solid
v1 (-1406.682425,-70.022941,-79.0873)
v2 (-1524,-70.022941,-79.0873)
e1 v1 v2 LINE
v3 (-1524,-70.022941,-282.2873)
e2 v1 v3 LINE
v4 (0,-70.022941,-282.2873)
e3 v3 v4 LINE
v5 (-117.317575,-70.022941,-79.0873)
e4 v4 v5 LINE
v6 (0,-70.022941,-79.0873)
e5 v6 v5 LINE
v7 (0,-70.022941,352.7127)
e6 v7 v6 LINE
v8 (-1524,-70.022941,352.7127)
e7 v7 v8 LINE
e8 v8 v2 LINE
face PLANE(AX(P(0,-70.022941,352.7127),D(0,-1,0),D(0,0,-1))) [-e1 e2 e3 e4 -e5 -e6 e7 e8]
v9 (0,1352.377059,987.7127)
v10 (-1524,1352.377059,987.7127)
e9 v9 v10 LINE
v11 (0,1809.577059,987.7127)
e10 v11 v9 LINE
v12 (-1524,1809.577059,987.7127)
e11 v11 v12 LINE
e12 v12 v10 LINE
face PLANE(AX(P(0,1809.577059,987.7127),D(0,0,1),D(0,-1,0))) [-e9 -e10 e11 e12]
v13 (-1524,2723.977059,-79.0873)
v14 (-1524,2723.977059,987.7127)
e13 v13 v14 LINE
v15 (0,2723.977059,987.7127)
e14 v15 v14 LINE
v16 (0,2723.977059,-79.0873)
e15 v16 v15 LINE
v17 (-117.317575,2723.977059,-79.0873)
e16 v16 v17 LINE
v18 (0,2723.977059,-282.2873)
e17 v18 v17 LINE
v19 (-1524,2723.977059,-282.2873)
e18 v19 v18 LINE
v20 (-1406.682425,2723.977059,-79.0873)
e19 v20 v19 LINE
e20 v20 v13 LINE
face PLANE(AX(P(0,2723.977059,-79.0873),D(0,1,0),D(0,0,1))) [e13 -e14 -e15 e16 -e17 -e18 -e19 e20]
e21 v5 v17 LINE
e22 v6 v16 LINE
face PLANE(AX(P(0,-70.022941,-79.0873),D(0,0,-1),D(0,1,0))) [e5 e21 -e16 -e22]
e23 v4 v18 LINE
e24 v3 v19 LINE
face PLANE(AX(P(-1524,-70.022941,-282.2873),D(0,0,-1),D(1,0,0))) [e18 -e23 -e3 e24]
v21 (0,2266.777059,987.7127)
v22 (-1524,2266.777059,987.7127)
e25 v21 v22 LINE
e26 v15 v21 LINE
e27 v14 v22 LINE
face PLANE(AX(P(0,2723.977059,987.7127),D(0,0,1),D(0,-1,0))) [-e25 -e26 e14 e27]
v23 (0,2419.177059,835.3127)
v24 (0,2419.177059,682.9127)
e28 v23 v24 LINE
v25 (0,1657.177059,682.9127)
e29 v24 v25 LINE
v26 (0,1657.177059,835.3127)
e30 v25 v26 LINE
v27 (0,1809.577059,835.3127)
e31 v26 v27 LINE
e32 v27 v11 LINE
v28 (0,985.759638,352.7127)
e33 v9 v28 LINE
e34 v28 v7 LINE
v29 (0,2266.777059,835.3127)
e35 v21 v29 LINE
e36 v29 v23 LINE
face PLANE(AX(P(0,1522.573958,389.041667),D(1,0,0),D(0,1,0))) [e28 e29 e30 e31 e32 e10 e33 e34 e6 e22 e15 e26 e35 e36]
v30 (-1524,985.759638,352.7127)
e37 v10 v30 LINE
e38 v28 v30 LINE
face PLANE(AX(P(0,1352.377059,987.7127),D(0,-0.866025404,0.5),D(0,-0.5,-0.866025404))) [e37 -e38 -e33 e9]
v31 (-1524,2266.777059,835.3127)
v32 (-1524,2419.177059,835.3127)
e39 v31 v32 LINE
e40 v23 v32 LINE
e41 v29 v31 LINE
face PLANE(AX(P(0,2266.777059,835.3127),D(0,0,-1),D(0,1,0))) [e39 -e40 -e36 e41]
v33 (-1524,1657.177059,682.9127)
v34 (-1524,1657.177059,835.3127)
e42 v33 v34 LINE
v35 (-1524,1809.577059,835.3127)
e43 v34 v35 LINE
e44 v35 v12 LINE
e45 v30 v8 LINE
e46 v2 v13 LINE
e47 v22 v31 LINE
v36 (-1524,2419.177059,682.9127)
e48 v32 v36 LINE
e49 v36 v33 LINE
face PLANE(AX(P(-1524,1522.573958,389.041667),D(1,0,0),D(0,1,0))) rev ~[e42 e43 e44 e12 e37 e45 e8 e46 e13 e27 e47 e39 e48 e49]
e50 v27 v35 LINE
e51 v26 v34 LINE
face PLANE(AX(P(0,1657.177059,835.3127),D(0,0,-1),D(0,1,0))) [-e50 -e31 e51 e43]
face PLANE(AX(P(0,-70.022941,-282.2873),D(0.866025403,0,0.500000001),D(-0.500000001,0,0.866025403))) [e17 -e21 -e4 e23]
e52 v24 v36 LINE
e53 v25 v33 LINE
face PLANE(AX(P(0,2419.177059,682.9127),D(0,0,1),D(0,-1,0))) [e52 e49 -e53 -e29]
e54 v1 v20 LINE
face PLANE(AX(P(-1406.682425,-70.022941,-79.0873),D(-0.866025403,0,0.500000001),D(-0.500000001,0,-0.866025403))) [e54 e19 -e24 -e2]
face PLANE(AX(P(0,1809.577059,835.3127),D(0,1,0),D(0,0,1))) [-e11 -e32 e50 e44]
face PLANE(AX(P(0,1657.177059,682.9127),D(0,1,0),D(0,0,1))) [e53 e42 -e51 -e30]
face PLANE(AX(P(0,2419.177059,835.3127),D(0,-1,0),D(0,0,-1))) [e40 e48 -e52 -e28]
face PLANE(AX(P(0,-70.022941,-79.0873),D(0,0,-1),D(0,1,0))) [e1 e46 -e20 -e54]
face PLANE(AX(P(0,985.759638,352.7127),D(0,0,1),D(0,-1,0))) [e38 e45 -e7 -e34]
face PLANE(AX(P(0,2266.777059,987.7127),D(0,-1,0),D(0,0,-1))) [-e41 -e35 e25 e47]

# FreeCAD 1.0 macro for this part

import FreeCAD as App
import Part
import Sketcher

V = App.Vector
Q = App.Units.Quantity

doc = App.newDocument("Part")
body = doc.addObject("PartDesign::Body", "Body")

sketch1 = doc.addObject("Sketcher::SketchObject", "Sketch")
body.addObject(sketch1)
sketch1.AttachmentSupport = (doc.YZ_Plane, [""])
sketch1.MapMode = "FlatFace"
sketch1.addGeometry(Part.LineSegment(V(-70.022941, 352.7127, 0), V(-70.022941, -79.0873, 0)), False)
sketch1.addGeometry(Part.LineSegment(V(-70.022941, -79.0873, 0), V(2723.977059, -79.0873, 0)), False)
sketch1.addGeometry(Part.LineSegment(V(2723.977059, -79.0873, 0), V(2723.977059, 987.7127, 0)), False)
sketch1.addGeometry(Part.LineSegment(V(2723.977059, 987.7127, 0), V(2266.777059, 987.7127, 0)), False)
sketch1.addGeometry(Part.LineSegment(V(2266.777059, 987.7127, 0), V(2266.777059, 835.3127, 0)), False)
sketch1.addGeometry(Part.LineSegment(V(2266.777059, 835.3127, 0), V(2419.177059, 835.3127, 0)), False)
sketch1.addGeometry(Part.LineSegment(V(2419.177059, 835.3127, 0), V(2419.177059, 682.9127, 0)), False)
sketch1.addGeometry(Part.LineSegment(V(2419.177059, 682.9127, 0), V(1657.177059, 682.9127, 0)), False)
sketch1.addGeometry(Part.LineSegment(V(1657.177059, 682.9127, 0), V(1657.177059, 835.3127, 0)), False)
sketch1.addGeometry(Part.LineSegment(V(1657.177059, 835.3127, 0), V(1809.577059, 835.3127, 0)), False)
sketch1.addGeometry(Part.LineSegment(V(1809.577059, 835.3127, 0), V(1809.577059, 987.7127, 0)), False)
sketch1.addGeometry(Part.LineSegment(V(1809.577059, 987.7127, 0), V(1352.377059, 987.7127, 0)), False)
sketch1.addGeometry(Part.LineSegment(V(1352.377059, 987.7127, 0), V(985.759638, 352.7127, 0)), False)
sketch1.addGeometry(Part.LineSegment(V(985.759638, 352.7127, 0), V(-70.022941, 352.7127, 0)), False)
sketch1.addConstraint(Sketcher.Constraint("Coincident", 0, 2, 1, 1))
sketch1.addConstraint(Sketcher.Constraint("Coincident", 1, 2, 2, 1))
sketch1.addConstraint(Sketcher.Constraint("Coincident", 2, 2, 3, 1))
sketch1.addConstraint(Sketcher.Constraint("Coincident", 3, 2, 4, 1))
sketch1.addConstraint(Sketcher.Constraint("Coincident", 4, 2, 5, 1))
sketch1.addConstraint(Sketcher.Constraint("Coincident", 5, 2, 6, 1))
sketch1.addConstraint(Sketcher.Constraint("Coincident", 6, 2, 7, 1))
sketch1.addConstraint(Sketcher.Constraint("Coincident", 7, 2, 8, 1))
sketch1.addConstraint(Sketcher.Constraint("Coincident", 8, 2, 9, 1))
sketch1.addConstraint(Sketcher.Constraint("Coincident", 9, 2, 10, 1))
sketch1.addConstraint(Sketcher.Constraint("Coincident", 10, 2, 11, 1))
sketch1.addConstraint(Sketcher.Constraint("Coincident", 11, 2, 12, 1))
sketch1.addConstraint(Sketcher.Constraint("Coincident", 12, 2, 13, 1))
sketch1.addConstraint(Sketcher.Constraint("Coincident", 13, 2, 0, 1))
sketch1.addConstraint(Sketcher.Constraint("Vertical", 0))
sketch1.addConstraint(Sketcher.Constraint("Horizontal", 1))
sketch1.addConstraint(Sketcher.Constraint("Vertical", 2))
sketch1.addConstraint(Sketcher.Constraint("Horizontal", 3))
sketch1.addConstraint(Sketcher.Constraint("Vertical", 4))
sketch1.addConstraint(Sketcher.Constraint("Horizontal", 5))
sketch1.addConstraint(Sketcher.Constraint("Vertical", 6))
sketch1.addConstraint(Sketcher.Constraint("Horizontal", 7))
sketch1.addConstraint(Sketcher.Constraint("Vertical", 8))
sketch1.addConstraint(Sketcher.Constraint("Horizontal", 9))
sketch1.addConstraint(Sketcher.Constraint("Vertical", 10))
sketch1.addConstraint(Sketcher.Constraint("Horizontal", 11))
sketch1.addConstraint(Sketcher.Constraint("Horizontal", 13))
sketch1.addConstraint(Sketcher.Constraint("Horizontal", 5, 2, 8, 2))
sketch1.addConstraint(Sketcher.Constraint("Horizontal", 3, 2, 10, 2))
sketch1.addConstraint(Sketcher.Constraint("Equal", 5, 9))
sketch1.addConstraint(Sketcher.Constraint("Equal", 3, 11))
sketch1.addConstraint(Sketcher.Constraint("Equal", 9, 4))
sketch1.addConstraint(Sketcher.Constraint("Equal", 4, 6))
sketch1.addConstraint(Sketcher.Constraint("DistanceX", 1, 1, 1, 2, Q("110 in")))
sketch1.addConstraint(Sketcher.Constraint("DistanceX", 3, 2, 3, 1, Q("18 in")))
sketch1.addConstraint(Sketcher.Constraint("DistanceX", 5, 1, 5, 2, Q("6 in")))
sketch1.addConstraint(Sketcher.Constraint("DistanceX", 7, 2, 7, 1, Q("30 in")))
sketch1.addConstraint(Sketcher.Constraint("DistanceY", 0, 2, 0, 1, Q("17 in")))
sketch1.addConstraint(Sketcher.Constraint("DistanceY", 2, 1, 2, 2, Q("42 in")))
sketch1.addConstraint(Sketcher.Constraint("Angle", 12, Q("-120 deg")))
sketch1.addConstraint(Sketcher.Constraint("DistanceY", 0, 2, -1, 1, 79.0873))
sketch1.addConstraint(Sketcher.Constraint("DistanceX", 0, 2, -1, 1, 70.022941))
pad1 = doc.addObject("PartDesign::Pad", "Pad")
body.addObject(pad1)
pad1.Profile = sketch1
pad1.Length = Q("60 in")
pad1.Reversed = True

sketch2 = doc.addObject("Sketcher::SketchObject", "Sketch001")
body.addObject(sketch2)
sketch2.AttachmentSupport = (doc.XZ_Plane, [""])
sketch2.MapMode = "FlatFace"
sketch2.AttachmentOffset = App.Placement(V(0, 0, 70.022941), App.Rotation())
sketch2.addGeometry(Part.LineSegment(V(-1406.682425, -79.0873, 0), V(-1524, -282.2873, 0)), False)
sketch2.addGeometry(Part.LineSegment(V(-1524, -282.2873, 0), V(0, -282.2873, 0)), False)
sketch2.addGeometry(Part.LineSegment(V(0, -282.2873, 0), V(-117.317575, -79.0873, 0)), False)
sketch2.addGeometry(Part.LineSegment(V(-117.317575, -79.0873, 0), V(-1406.682425, -79.0873, 0)), False)
sketch2.addConstraint(Sketcher.Constraint("Coincident", 0, 2, 1, 1))
sketch2.addConstraint(Sketcher.Constraint("Coincident", 1, 2, 2, 1))
sketch2.addConstraint(Sketcher.Constraint("Coincident", 2, 2, 3, 1))
sketch2.addConstraint(Sketcher.Constraint("Coincident", 3, 2, 0, 1))
sketch2.addConstraint(Sketcher.Constraint("Horizontal", 1))
sketch2.addConstraint(Sketcher.Constraint("Horizontal", 3))
sketch2.addConstraint(Sketcher.Constraint("PointOnObject", 1, 2, -2))
sketch2.addConstraint(Sketcher.Constraint("Equal", 0, 2))
sketch2.addConstraint(Sketcher.Constraint("DistanceX", 1, 1, 1, 2, Q("60 in")))
sketch2.addConstraint(Sketcher.Constraint("Angle", 0, Q("-120 deg")))
sketch2.addConstraint(Sketcher.Constraint("DistanceY", 1, 2, 2, 2, Q("8 in")))
sketch2.addConstraint(Sketcher.Constraint("DistanceY", 0, 2, -1, 1, 282.2873))
pad2 = doc.addObject("PartDesign::Pad", "Pad001")
body.addObject(pad2)
pad2.Profile = sketch2
pad2.Length = Q("110 in")
pad2.Reversed = True

doc.recompute()
